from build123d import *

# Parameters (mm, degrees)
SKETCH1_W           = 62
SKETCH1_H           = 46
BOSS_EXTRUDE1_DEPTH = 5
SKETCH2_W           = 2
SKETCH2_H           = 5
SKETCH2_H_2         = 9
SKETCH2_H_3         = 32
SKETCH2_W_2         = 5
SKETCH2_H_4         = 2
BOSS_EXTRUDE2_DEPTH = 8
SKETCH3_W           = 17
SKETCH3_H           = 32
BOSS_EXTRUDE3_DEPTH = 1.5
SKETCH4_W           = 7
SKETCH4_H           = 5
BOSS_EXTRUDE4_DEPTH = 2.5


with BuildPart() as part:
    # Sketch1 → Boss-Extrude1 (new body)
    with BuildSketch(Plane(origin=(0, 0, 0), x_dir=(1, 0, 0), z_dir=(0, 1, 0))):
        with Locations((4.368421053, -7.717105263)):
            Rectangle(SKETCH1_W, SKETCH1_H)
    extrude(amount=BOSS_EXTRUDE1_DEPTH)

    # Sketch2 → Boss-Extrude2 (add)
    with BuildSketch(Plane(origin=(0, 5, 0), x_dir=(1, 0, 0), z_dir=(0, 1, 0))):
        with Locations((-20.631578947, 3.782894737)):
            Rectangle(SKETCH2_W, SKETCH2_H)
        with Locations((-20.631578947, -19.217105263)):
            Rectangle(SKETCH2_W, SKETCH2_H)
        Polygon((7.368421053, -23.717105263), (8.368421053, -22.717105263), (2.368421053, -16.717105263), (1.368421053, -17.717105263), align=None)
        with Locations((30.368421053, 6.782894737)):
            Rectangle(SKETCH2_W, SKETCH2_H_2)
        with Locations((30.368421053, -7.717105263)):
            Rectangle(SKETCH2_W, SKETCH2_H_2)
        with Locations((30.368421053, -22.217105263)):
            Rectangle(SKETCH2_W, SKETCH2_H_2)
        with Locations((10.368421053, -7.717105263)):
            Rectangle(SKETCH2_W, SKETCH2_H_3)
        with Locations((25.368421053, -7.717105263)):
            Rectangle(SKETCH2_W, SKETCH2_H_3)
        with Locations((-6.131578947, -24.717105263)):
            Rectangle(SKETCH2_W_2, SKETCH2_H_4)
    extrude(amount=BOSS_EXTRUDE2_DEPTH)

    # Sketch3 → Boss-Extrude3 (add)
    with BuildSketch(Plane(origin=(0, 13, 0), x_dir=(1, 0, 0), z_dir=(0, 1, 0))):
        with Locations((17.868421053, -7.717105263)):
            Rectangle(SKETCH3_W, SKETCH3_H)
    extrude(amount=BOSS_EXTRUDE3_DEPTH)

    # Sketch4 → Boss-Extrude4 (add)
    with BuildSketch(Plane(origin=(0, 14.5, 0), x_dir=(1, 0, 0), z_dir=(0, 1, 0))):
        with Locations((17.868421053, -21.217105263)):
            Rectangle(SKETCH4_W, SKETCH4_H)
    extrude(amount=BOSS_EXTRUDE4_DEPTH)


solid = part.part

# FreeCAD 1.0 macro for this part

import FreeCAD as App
import Part
import Sketcher

V = App.Vector
Q = App.Units.Quantity

doc = App.newDocument("Part")
body = doc.addObject("PartDesign::Body", "Body")

sketch1 = doc.addObject("Sketcher::SketchObject", "Sketch")
body.addObject(sketch1)
sketch1.AttachmentSupport = (doc.XZ_Plane, [""])
sketch1.MapMode = "FlatFace"
sketch1.addGeometry([
    Part.LineSegment(V(-27, -15, 0), V(-27, 31, 0)),
    Part.LineSegment(V(-27, 31, 0), V(35, 31, 0)),
    Part.LineSegment(V(35, 31, 0), V(35, -15, 0)),
    Part.LineSegment(V(35, -15, 0), V(-27, -15, 0)),
], False)
sketch1.addConstraint([
    Sketcher.Constraint("Coincident", 0, 2, 1, 1),
    Sketcher.Constraint("Coincident", 1, 2, 2, 1),
    Sketcher.Constraint("Coincident", 2, 2, 3, 1),
    Sketcher.Constraint("Coincident", 3, 2, 0, 1),
    Sketcher.Constraint("Vertical", 0),
    Sketcher.Constraint("Horizontal", 1),
    Sketcher.Constraint("Vertical", 2),
    Sketcher.Constraint("Horizontal", 3),
    Sketcher.Constraint("DistanceX", 1, 1, 1, 2, 62.0),
    Sketcher.Constraint("DistanceY", 0, 1, 0, 2, 46.0),
    Sketcher.Constraint("DistanceX", 0, 2, -1, 1, 26.631579),
    Sketcher.Constraint("DistanceY", -1, 1, 0, 2, 30.717105),
])
pad1 = doc.addObject("PartDesign::Pad", "Pad")
body.addObject(pad1)
pad1.Profile = sketch1
pad1.Length = 5
pad1.Reversed = True

sketch2 = doc.addObject("Sketcher::SketchObject", "Sketch001")
body.addObject(sketch2)
sketch2.AttachmentSupport = (doc.XZ_Plane, [""])
sketch2.MapMode = "FlatFace"
sketch2.AttachmentOffset = App.Placement(V(0, 0, -5), App.Rotation())
sketch2.addGeometry([
    Part.LineSegment(V(-21.6, -6.3, 0), V(-21.6, -1.3, 0)),
    Part.LineSegment(V(-21.6, -1.3, 0), V(-19.6, -1.3, 0)),
    Part.LineSegment(V(-19.6, -1.3, 0), V(-19.6, -6.3, 0)),
    Part.LineSegment(V(-19.6, -6.3, 0), V(-21.6, -6.3, 0)),
    Part.LineSegment(V(-21.6, 16.7, 0), V(-21.6, 21.7, 0)),
    Part.LineSegment(V(-21.6, 21.7, 0), V(-19.6, 21.7, 0)),
    Part.LineSegment(V(-19.6, 21.7, 0), V(-19.6, 16.7, 0)),
    Part.LineSegment(V(-19.6, 16.7, 0), V(-21.6, 16.7, 0)),
    Part.LineSegment(V(7.4, 23.7, 0), V(8.4, 22.7, 0)),
    Part.LineSegment(V(8.4, 22.7, 0), V(2.4, 16.7, 0)),
    Part.LineSegment(V(2.4, 16.7, 0), V(1.4, 17.7, 0)),
    Part.LineSegment(V(1.4, 17.7, 0), V(7.4, 23.7, 0)),
    Part.LineSegment(V(29.4, -11.3, 0), V(29.4, -2.3, 0)),
    Part.LineSegment(V(29.4, -2.3, 0), V(31.4, -2.3, 0)),
    Part.LineSegment(V(31.4, -2.3, 0), V(31.4, -11.3, 0)),
    Part.LineSegment(V(31.4, -11.3, 0), V(29.4, -11.3, 0)),
    Part.LineSegment(V(29.4, 3.2, 0), V(29.4, 12.2, 0)),
    Part.LineSegment(V(29.4, 12.2, 0), V(31.4, 12.2, 0)),
    Part.LineSegment(V(31.4, 12.2, 0), V(31.4, 3.2, 0)),
    Part.LineSegment(V(31.4, 3.2, 0), V(29.4, 3.2, 0)),
    Part.LineSegment(V(29.4, 17.7, 0), V(29.4, 26.7, 0)),
    Part.LineSegment(V(29.4, 26.7, 0), V(31.4, 26.7, 0)),
    Part.LineSegment(V(31.4, 26.7, 0), V(31.4, 17.7, 0)),
    Part.LineSegment(V(31.4, 17.7, 0), V(29.4, 17.7, 0)),
    Part.LineSegment(V(9.4, -8.3, 0), V(9.4, 23.7, 0)),
    Part.LineSegment(V(9.4, 23.7, 0), V(11.4, 23.7, 0)),
    Part.LineSegment(V(11.4, 23.7, 0), V(11.4, -8.3, 0)),
    Part.LineSegment(V(11.4, -8.3, 0), V(9.4, -8.3, 0)),
    Part.LineSegment(V(24.4, -8.3, 0), V(24.4, 23.7, 0)),
    Part.LineSegment(V(24.4, 23.7, 0), V(26.4, 23.7, 0)),
    Part.LineSegment(V(26.4, 23.7, 0), V(26.4, -8.3, 0)),
    Part.LineSegment(V(26.4, -8.3, 0), V(24.4, -8.3, 0)),
    Part.LineSegment(V(-8.6, 23.7, 0), V(-8.6, 25.7, 0)),
    Part.LineSegment(V(-8.6, 25.7, 0), V(-3.6, 25.7, 0)),
    Part.LineSegment(V(-3.6, 25.7, 0), V(-3.6, 23.7, 0)),
    Part.LineSegment(V(-3.6, 23.7, 0), V(-8.6, 23.7, 0)),
], False)
sketch2.addConstraint([
    Sketcher.Constraint("Coincident", 0, 2, 1, 1),
    Sketcher.Constraint("Coincident", 1, 2, 2, 1),
    Sketcher.Constraint("Coincident", 2, 2, 3, 1),
    Sketcher.Constraint("Coincident", 3, 2, 0, 1),
    Sketcher.Constraint("Coincident", 4, 2, 5, 1),
    Sketcher.Constraint("Coincident", 5, 2, 6, 1),
    Sketcher.Constraint("Coincident", 6, 2, 7, 1),
    Sketcher.Constraint("Coincident", 7, 2, 4, 1),
    Sketcher.Constraint("Coincident", 8, 2, 9, 1),
    Sketcher.Constraint("Coincident", 9, 2, 10, 1),
    Sketcher.Constraint("Coincident", 10, 2, 11, 1),
    Sketcher.Constraint("Coincident", 11, 2, 8, 1),
    Sketcher.Constraint("Coincident", 12, 2, 13, 1),
    Sketcher.Constraint("Coincident", 13, 2, 14, 1),
    Sketcher.Constraint("Coincident", 14, 2, 15, 1),
    Sketcher.Constraint("Coincident", 15, 2, 12, 1),
    Sketcher.Constraint("Coincident", 16, 2, 17, 1),
    Sketcher.Constraint("Coincident", 17, 2, 18, 1),
    Sketcher.Constraint("Coincident", 18, 2, 19, 1),
    Sketcher.Constraint("Coincident", 19, 2, 16, 1),
    Sketcher.Constraint("Coincident", 20, 2, 21, 1),
    Sketcher.Constraint("Coincident", 21, 2, 22, 1),
    Sketcher.Constraint("Coincident", 22, 2, 23, 1),
    Sketcher.Constraint("Coincident", 23, 2, 20, 1),
    Sketcher.Constraint("Coincident", 24, 2, 25, 1),
    Sketcher.Constraint("Coincident", 25, 2, 26, 1),
    Sketcher.Constraint("Coincident", 26, 2, 27, 1),
    Sketcher.Constraint("Coincident", 27, 2, 24, 1),
    Sketcher.Constraint("Coincident", 28, 2, 29, 1),
    Sketcher.Constraint("Coincident", 29, 2, 30, 1),
    Sketcher.Constraint("Coincident", 30, 2, 31, 1),
    Sketcher.Constraint("Coincident", 31, 2, 28, 1),
    Sketcher.Constraint("Coincident", 32, 2, 33, 1),
    Sketcher.Constraint("Coincident", 33, 2, 34, 1),
    Sketcher.Constraint("Coincident", 34, 2, 35, 1),
    Sketcher.Constraint("Coincident", 35, 2, 32, 1),
    Sketcher.Constraint("Vertical", 0),
    Sketcher.Constraint("Horizontal", 1),
    Sketcher.Constraint("Vertical", 2),
    Sketcher.Constraint("Horizontal", 3),
    Sketcher.Constraint("Vertical", 4),
    Sketcher.Constraint("Horizontal", 5),
    Sketcher.Constraint("Vertical", 6),
    Sketcher.Constraint("Horizontal", 7),
    Sketcher.Constraint("Vertical", 12),
    Sketcher.Constraint("Horizontal", 13),
    Sketcher.Constraint("Vertical", 14),
    Sketcher.Constraint("Horizontal", 15),
    Sketcher.Constraint("Vertical", 16),
    Sketcher.Constraint("Horizontal", 17),
    Sketcher.Constraint("Vertical", 18),
    Sketcher.Constraint("Horizontal", 19),
    Sketcher.Constraint("Vertical", 20),
    Sketcher.Constraint("Horizontal", 21),
    Sketcher.Constraint("Vertical", 22),
    Sketcher.Constraint("Horizontal", 23),
    Sketcher.Constraint("Vertical", 24),
    Sketcher.Constraint("Horizontal", 25),
    Sketcher.Constraint("Vertical", 26),
    Sketcher.Constraint("Horizontal", 27),
    Sketcher.Constraint("Vertical", 28),
    Sketcher.Constraint("Horizontal", 29),
    Sketcher.Constraint("Vertical", 30),
    Sketcher.Constraint("Horizontal", 31),
    Sketcher.Constraint("Vertical", 32),
    Sketcher.Constraint("Horizontal", 33),
    Sketcher.Constraint("Vertical", 34),
    Sketcher.Constraint("Horizontal", 35),
    Sketcher.Constraint("Perpendicular", 8, 9),
    Sketcher.Constraint("Perpendicular", 9, 10),
    Sketcher.Constraint("Perpendicular", 10, 11),
    Sketcher.Constraint("Horizontal", 7, 2, 9, 2),
    Sketcher.Constraint("Horizontal", 10, 2, 22, 2),
    Sketcher.Constraint("Horizontal", 11, 2, 24, 2),
    Sketcher.Constraint("Horizontal", 25, 2, 28, 2),
    Sketcher.Constraint("Horizontal", 27, 2, 30, 2),
    Sketcher.Constraint("Horizontal", 29, 2, 34, 2),
    Sketcher.Constraint("Vertical", 3, 2, 4, 2),
    Sketcher.Constraint("Vertical", 2, 2, 5, 2),
    Sketcher.Constraint("Vertical", 15, 2, 16, 2),
    Sketcher.Constraint("Vertical", 14, 2, 17, 2),
    Sketcher.Constraint("Vertical", 19, 2, 20, 2),
    Sketcher.Constraint("Vertical", 18, 2, 21, 2),
    Sketcher.Constraint("Equal", 7, 13),
    Sketcher.Constraint("Equal", 23, 25),
    Sketcher.Constraint("Equal", 27, 29),
    Sketcher.Constraint("Equal", 35, 0),
    Sketcher.Constraint("Equal", 2, 4),
    Sketcher.Constraint("Equal", 14, 16),
    Sketcher.Constraint("Equal", 18, 20),
    Sketcher.Constraint("Equal", 31, 32),
    Sketcher.Constraint("DistanceX", 1, 1, 1, 2, 2.0),
    Sketcher.Constraint("DistanceX", 33, 1, 33, 2, 5.0),
    Sketcher.Constraint("DistanceY", 12, 1, 12, 2, 9.0),
    Sketcher.Constraint("DistanceY", 24, 1, 24, 2, 32.0),
    Sketcher.Constraint("Angle", 8, Q("-45 deg")),
    Sketcher.Constraint("DistanceY", 0, 2, 4, 2, 23.0),
    Sketcher.Constraint("DistanceX", 5, 2, 8, 2, 28.0),
    Sketcher.Constraint("DistanceY", 5, 2, 8, 2, 1.0),
    Sketcher.Constraint("DistanceX", 10, 2, 9, 2, 1.0),
    Sketcher.Constraint("DistanceX", 8, 2, 12, 2, 21.0),
    Sketcher.Constraint("DistanceY", 12, 2, 8, 2, 25.0),
    Sketcher.Constraint("DistanceX", 8, 2, 24, 2, 1.0),
    Sketcher.Constraint("DistanceX", 28, 2, 20, 2, 5.0),
    Sketcher.Constraint("DistanceX", 5, 2, 32, 2, 11.0),
    Sketcher.Constraint("DistanceY", 12, 2, 16, 2, 14.5),
    Sketcher.Constraint("DistanceX", 0, 2, -1, 1, 21.631579),
    Sketcher.Constraint("DistanceY", 0, 2, -1, 1, 1.282895),
])
pad2 = doc.addObject("PartDesign::Pad", "Pad001")
body.addObject(pad2)
pad2.Profile = sketch2
pad2.Length = 8
pad2.Reversed = True

sketch3 = doc.addObject("Sketcher::SketchObject", "Sketch002")
body.addObject(sketch3)
sketch3.AttachmentSupport = (doc.XZ_Plane, [""])
sketch3.MapMode = "FlatFace"
sketch3.AttachmentOffset = App.Placement(V(0, 0, -13), App.Rotation())
sketch3.addGeometry([
    Part.LineSegment(V(9, -8, 0), V(9, 24, 0)),
    Part.LineSegment(V(9, 24, 0), V(26, 24, 0)),
    Part.LineSegment(V(26, 24, 0), V(26, -8, 0)),
    Part.LineSegment(V(26, -8, 0), V(9, -8, 0)),
], False)
sketch3.addConstraint([
    Sketcher.Constraint("Coincident", 0, 2, 1, 1),
    Sketcher.Constraint("Coincident", 1, 2, 2, 1),
    Sketcher.Constraint("Coincident", 2, 2, 3, 1),
    Sketcher.Constraint("Coincident", 3, 2, 0, 1),
    Sketcher.Constraint("Vertical", 0),
    Sketcher.Constraint("Horizontal", 1),
    Sketcher.Constraint("Vertical", 2),
    Sketcher.Constraint("Horizontal", 3),
    Sketcher.Constraint("DistanceX", 1, 1, 1, 2, 17.0),
    Sketcher.Constraint("DistanceY", 0, 1, 0, 2, 32.0),
    Sketcher.Constraint("DistanceX", -1, 1, 0, 2, 9.368421),
    Sketcher.Constraint("DistanceY", -1, 1, 0, 2, 23.717105),
])
pad3 = doc.addObject("PartDesign::Pad", "Pad002")
body.addObject(pad3)
pad3.Profile = sketch3
pad3.Length = 1.5
pad3.Reversed = True

sketch4 = doc.addObject("Sketcher::SketchObject", "Sketch003")
body.addObject(sketch4)
sketch4.AttachmentSupport = (doc.XZ_Plane, [""])
sketch4.MapMode = "FlatFace"
sketch4.AttachmentOffset = App.Placement(V(0, 0, -14.5), App.Rotation())
sketch4.addGeometry([
    Part.LineSegment(V(14, 19, 0), V(14, 24, 0)),
    Part.LineSegment(V(14, 24, 0), V(21, 24, 0)),
    Part.LineSegment(V(21, 24, 0), V(21, 19, 0)),
    Part.LineSegment(V(21, 19, 0), V(14, 19, 0)),
], False)
sketch4.addConstraint([
    Sketcher.Constraint("Coincident", 0, 2, 1, 1),
    Sketcher.Constraint("Coincident", 1, 2, 2, 1),
    Sketcher.Constraint("Coincident", 2, 2, 3, 1),
    Sketcher.Constraint("Coincident", 3, 2, 0, 1),
    Sketcher.Constraint("Vertical", 0),
    Sketcher.Constraint("Horizontal", 1),
    Sketcher.Constraint("Vertical", 2),
    Sketcher.Constraint("Horizontal", 3),
    Sketcher.Constraint("DistanceX", 1, 1, 1, 2, 7.0),
    Sketcher.Constraint("DistanceY", 0, 1, 0, 2, 5.0),
    Sketcher.Constraint("DistanceX", -1, 1, 0, 2, 14.368421),
    Sketcher.Constraint("DistanceY", -1, 1, 0, 2, 23.717105),
])
pad4 = doc.addObject("PartDesign::Pad", "Pad003")
body.addObject(pad4)
pad4.Profile = sketch4
pad4.Length = 2.5
pad4.Reversed = True

doc.recompute()
